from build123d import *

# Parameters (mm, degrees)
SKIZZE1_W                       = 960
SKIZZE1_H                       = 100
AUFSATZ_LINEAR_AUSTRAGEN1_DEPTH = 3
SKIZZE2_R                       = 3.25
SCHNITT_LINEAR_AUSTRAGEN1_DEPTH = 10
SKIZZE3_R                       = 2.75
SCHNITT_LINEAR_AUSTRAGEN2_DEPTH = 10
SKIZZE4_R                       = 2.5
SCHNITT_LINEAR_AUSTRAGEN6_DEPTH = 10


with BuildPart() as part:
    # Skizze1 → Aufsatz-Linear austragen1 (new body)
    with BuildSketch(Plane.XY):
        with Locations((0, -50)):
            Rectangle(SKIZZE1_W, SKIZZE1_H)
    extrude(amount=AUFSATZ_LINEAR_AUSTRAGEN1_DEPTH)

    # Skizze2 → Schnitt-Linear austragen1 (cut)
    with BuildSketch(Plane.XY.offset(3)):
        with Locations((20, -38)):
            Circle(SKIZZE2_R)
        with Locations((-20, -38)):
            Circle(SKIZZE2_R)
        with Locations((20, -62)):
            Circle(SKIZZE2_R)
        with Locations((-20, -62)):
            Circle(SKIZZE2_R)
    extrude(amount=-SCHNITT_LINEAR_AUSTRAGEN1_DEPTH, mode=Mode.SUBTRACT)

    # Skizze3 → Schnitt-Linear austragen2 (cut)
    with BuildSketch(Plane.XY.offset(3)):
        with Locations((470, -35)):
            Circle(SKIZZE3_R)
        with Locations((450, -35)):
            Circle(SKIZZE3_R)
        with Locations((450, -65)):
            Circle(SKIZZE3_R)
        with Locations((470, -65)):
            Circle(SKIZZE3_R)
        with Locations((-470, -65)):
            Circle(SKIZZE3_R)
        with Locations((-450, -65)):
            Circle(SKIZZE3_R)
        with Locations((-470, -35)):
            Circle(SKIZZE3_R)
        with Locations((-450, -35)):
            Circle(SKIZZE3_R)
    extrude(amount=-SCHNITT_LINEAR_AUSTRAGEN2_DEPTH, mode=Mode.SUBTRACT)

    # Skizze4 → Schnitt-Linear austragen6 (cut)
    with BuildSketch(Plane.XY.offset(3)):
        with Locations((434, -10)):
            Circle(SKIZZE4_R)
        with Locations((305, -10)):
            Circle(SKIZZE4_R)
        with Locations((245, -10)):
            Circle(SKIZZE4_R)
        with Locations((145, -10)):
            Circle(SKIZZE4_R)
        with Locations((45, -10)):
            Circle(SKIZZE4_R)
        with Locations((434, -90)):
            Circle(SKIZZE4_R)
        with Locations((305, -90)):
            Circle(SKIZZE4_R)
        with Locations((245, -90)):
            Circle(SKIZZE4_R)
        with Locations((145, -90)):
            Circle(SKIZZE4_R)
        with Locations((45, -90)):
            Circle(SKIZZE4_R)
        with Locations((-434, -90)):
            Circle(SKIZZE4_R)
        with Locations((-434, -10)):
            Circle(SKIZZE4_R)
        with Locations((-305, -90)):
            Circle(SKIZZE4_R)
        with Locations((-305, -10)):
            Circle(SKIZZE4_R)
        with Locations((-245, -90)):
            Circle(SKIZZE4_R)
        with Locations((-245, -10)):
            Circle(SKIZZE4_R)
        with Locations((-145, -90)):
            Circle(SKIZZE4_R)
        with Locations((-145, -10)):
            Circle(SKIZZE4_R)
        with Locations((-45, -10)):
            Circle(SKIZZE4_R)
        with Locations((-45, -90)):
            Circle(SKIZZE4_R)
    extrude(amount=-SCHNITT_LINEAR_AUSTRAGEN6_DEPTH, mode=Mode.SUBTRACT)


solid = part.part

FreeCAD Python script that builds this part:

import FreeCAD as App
import Part
import Sketcher

V = App.Vector
Q = App.Units.Quantity


def add_polygon(sketch, points):
    """Adds a closed chain of lines whose ends are joined by coincident constraints."""
    first, n = sketch.GeometryCount, len(points)
    for a, b in zip(points, points[1:] + points[:1]):
        sketch.addGeometry(Part.LineSegment(App.Vector(*a, 0), App.Vector(*b, 0)), False)
    for i in range(n):
        sketch.addConstraint(Sketcher.Constraint("Coincident", first + i, 2, first + (i + 1) % n, 1))

doc = App.newDocument("Part")
body = doc.addObject("PartDesign::Body", "Body")

sketch1 = doc.addObject("Sketcher::SketchObject", "Sketch")
body.addObject(sketch1)
sketch1.AttachmentSupport = (doc.XY_Plane, [""])
sketch1.MapMode = "FlatFace"
add_polygon(sketch1, [(-480, 0), (-480, -100), (480, -100), (480, 0)])
sketch1.addConstraint([
    Sketcher.Constraint("Vertical", 0),
    Sketcher.Constraint("Horizontal", 1),
    Sketcher.Constraint("Vertical", 2),
    Sketcher.Constraint("Horizontal", 3),
    Sketcher.Constraint("Symmetric", 2, 2, 3, 2, -1, 1),
    Sketcher.Constraint("DistanceX", 1, 1, 1, 2, Q("960 mm")),
    Sketcher.Constraint("DistanceY", 0, 2, 0, 1, Q("100 mm")),
])
pad1 = doc.addObject("PartDesign::Pad", "Pad")
body.addObject(pad1)
pad1.Profile = sketch1
pad1.Length = 3

sketch2 = doc.addObject("Sketcher::SketchObject", "Sketch001")
body.addObject(sketch2)
sketch2.AttachmentSupport = (doc.XY_Plane, [""])
sketch2.MapMode = "FlatFace"
sketch2.AttachmentOffset = App.Placement(V(0, 0, 3), App.Rotation())
sketch2.addGeometry([
    Part.Circle(V(20, -38, 0), V(0, 0, 1), 3.2),
    Part.Circle(V(-20, -38, 0), V(0, 0, 1), 3.2),
    Part.Circle(V(20, -62, 0), V(0, 0, 1), 3.2),
    Part.Circle(V(-20, -62, 0), V(0, 0, 1), 3.2),
], False)
sketch2.addConstraint([
    Sketcher.Constraint("Equal", 0, 1),
    Sketcher.Constraint("Equal", 1, 2),
    Sketcher.Constraint("Equal", 2, 3),
    Sketcher.Constraint("Symmetric", 0, 3, 1, 3, -2),
    Sketcher.Constraint("Symmetric", 2, 3, 3, 3, -2),
    Sketcher.Constraint("Vertical", 0, 3, 2, 3),
    Sketcher.Constraint("Diameter", 0, Q("6.5 mm")),
    Sketcher.Constraint("DistanceX", -1, 1, 0, 3, Q("20 mm")),
    Sketcher.Constraint("DistanceY", 0, 3, -1, 1, Q("38 mm")),
    Sketcher.Constraint("DistanceY", 2, 3, -1, 1, Q("62 mm")),
])
pocket1 = doc.addObject("PartDesign::Pocket", "Pocket")
body.addObject(pocket1)
pocket1.Profile = sketch2
pocket1.Length = 10

sketch3 = doc.addObject("Sketcher::SketchObject", "Sketch002")
body.addObject(sketch3)
sketch3.AttachmentSupport = (doc.XY_Plane, [""])
sketch3.MapMode = "FlatFace"
sketch3.AttachmentOffset = App.Placement(V(0, 0, 3), App.Rotation())
sketch3.addGeometry([
    Part.Circle(V(470, -35, 0), V(0, 0, 1), 2.8),
    Part.Circle(V(450, -35, 0), V(0, 0, 1), 2.8),
    Part.Circle(V(450, -65, 0), V(0, 0, 1), 2.8),
    Part.Circle(V(470, -65, 0), V(0, 0, 1), 2.8),
    Part.Circle(V(-470, -65, 0), V(0, 0, 1), 2.8),
    Part.Circle(V(-450, -65, 0), V(0, 0, 1), 2.8),
    Part.Circle(V(-470, -35, 0), V(0, 0, 1), 2.8),
    Part.Circle(V(-450, -35, 0), V(0, 0, 1), 2.8),
], False)
sketch3.addConstraint([
    Sketcher.Constraint("Equal", 0, 1),
    Sketcher.Constraint("Equal", 1, 2),
    Sketcher.Constraint("Equal", 2, 3),
    Sketcher.Constraint("Equal", 3, 4),
    Sketcher.Constraint("Equal", 4, 5),
    Sketcher.Constraint("Equal", 5, 6),
    Sketcher.Constraint("Equal", 6, 7),
    Sketcher.Constraint("Symmetric", 3, 3, 4, 3, -2),
    Sketcher.Constraint("Symmetric", 2, 3, 5, 3, -2),
    Sketcher.Constraint("Symmetric", 0, 3, 6, 3, -2),
    Sketcher.Constraint("Symmetric", 1, 3, 7, 3, -2),
    Sketcher.Constraint("Horizontal", 0, 3, 1, 3),
    Sketcher.Constraint("Horizontal", 2, 3, 3, 3),
    Sketcher.Constraint("Vertical", 1, 3, 2, 3),
    Sketcher.Constraint("Vertical", 0, 3, 3, 3),
    Sketcher.Constraint("Diameter", 0, Q("5.5 mm")),
    Sketcher.Constraint("DistanceX", -1, 1, 0, 3, Q("470 mm")),
    Sketcher.Constraint("DistanceY", 0, 3, -1, 1, Q("35 mm")),
    Sketcher.Constraint("DistanceX", -1, 1, 1, 3, Q("450 mm")),
    Sketcher.Constraint("DistanceY", 2, 3, -1, 1, Q("65 mm")),
])
pocket2 = doc.addObject("PartDesign::Pocket", "Pocket001")
body.addObject(pocket2)
pocket2.Profile = sketch3
pocket2.Length = 10

sketch4 = doc.addObject("Sketcher::SketchObject", "Sketch003")
body.addObject(sketch4)
sketch4.AttachmentSupport = (doc.XY_Plane, [""])
sketch4.MapMode = "FlatFace"
sketch4.AttachmentOffset = App.Placement(V(0, 0, 3), App.Rotation())
sketch4.addGeometry([
    Part.Circle(V(434, -10, 0), V(0, 0, 1), 2.5),
    Part.Circle(V(305, -10, 0), V(0, 0, 1), 2.5),
    Part.Circle(V(245, -10, 0), V(0, 0, 1), 2.5),
    Part.Circle(V(145, -10, 0), V(0, 0, 1), 2.5),
    Part.Circle(V(45, -10, 0), V(0, 0, 1), 2.5),
    Part.Circle(V(434, -90, 0), V(0, 0, 1), 2.5),
    Part.Circle(V(305, -90, 0), V(0, 0, 1), 2.5),
    Part.Circle(V(245, -90, 0), V(0, 0, 1), 2.5),
    Part.Circle(V(145, -90, 0), V(0, 0, 1), 2.5),
    Part.Circle(V(45, -90, 0), V(0, 0, 1), 2.5),
    Part.Circle(V(-434, -90, 0), V(0, 0, 1), 2.5),
    Part.Circle(V(-434, -10, 0), V(0, 0, 1), 2.5),
    Part.Circle(V(-305, -90, 0), V(0, 0, 1), 2.5),
    Part.Circle(V(-305, -10, 0), V(0, 0, 1), 2.5),
    Part.Circle(V(-245, -90, 0), V(0, 0, 1), 2.5),
    Part.Circle(V(-245, -10, 0), V(0, 0, 1), 2.5),
    Part.Circle(V(-145, -90, 0), V(0, 0, 1), 2.5),
    Part.Circle(V(-145, -10, 0), V(0, 0, 1), 2.5),
    Part.Circle(V(-45, -10, 0), V(0, 0, 1), 2.5),
    Part.Circle(V(-45, -90, 0), V(0, 0, 1), 2.5),
], False)
sketch4.addConstraint([
    Sketcher.Constraint("Equal", 0, 1),
    Sketcher.Constraint("Equal", 1, 2),
    Sketcher.Constraint("Equal", 2, 3),
    Sketcher.Constraint("Equal", 3, 4),
    Sketcher.Constraint("Equal", 4, 5),
    Sketcher.Constraint("Equal", 5, 6),
    Sketcher.Constraint("Equal", 6, 7),
    Sketcher.Constraint("Equal", 7, 8),
    Sketcher.Constraint("Equal", 8, 9),
    Sketcher.Constraint("Equal", 9, 10),
    Sketcher.Constraint("Equal", 10, 11),
    Sketcher.Constraint("Equal", 11, 12),
    Sketcher.Constraint("Equal", 12, 13),
    Sketcher.Constraint("Equal", 13, 14),
    Sketcher.Constraint("Equal", 14, 15),
    Sketcher.Constraint("Equal", 15, 16),
    Sketcher.Constraint("Equal", 16, 17),
    Sketcher.Constraint("Equal", 17, 18),
    Sketcher.Constraint("Equal", 18, 19),
    Sketcher.Constraint("Symmetric", 5, 3, 10, 3, -2),
    Sketcher.Constraint("Symmetric", 0, 3, 11, 3, -2),
    Sketcher.Constraint("Symmetric", 6, 3, 12, 3, -2),
    Sketcher.Constraint("Symmetric", 1, 3, 13, 3, -2),
    Sketcher.Constraint("Symmetric", 7, 3, 14, 3, -2),
    Sketcher.Constraint("Symmetric", 2, 3, 15, 3, -2),
    Sketcher.Constraint("Symmetric", 8, 3, 16, 3, -2),
    Sketcher.Constraint("Symmetric", 3, 3, 17, 3, -2),
    Sketcher.Constraint("Symmetric", 4, 3, 18, 3, -2),
    Sketcher.Constraint("Symmetric", 9, 3, 19, 3, -2),
    Sketcher.Constraint("Horizontal", 0, 3, 1, 3),
    Sketcher.Constraint("Horizontal", 1, 3, 2, 3),
    Sketcher.Constraint("Horizontal", 2, 3, 3, 3),
    Sketcher.Constraint("Horizontal", 3, 3, 4, 3),
    Sketcher.Constraint("Horizontal", 5, 3, 6, 3),
    Sketcher.Constraint("Horizontal", 6, 3, 7, 3),
    Sketcher.Constraint("Horizontal", 7, 3, 8, 3),
    Sketcher.Constraint("Horizontal", 8, 3, 9, 3),
    Sketcher.Constraint("Vertical", 0, 3, 5, 3),
    Sketcher.Constraint("Vertical", 1, 3, 6, 3),
    Sketcher.Constraint("Vertical", 2, 3, 7, 3),
    Sketcher.Constraint("Vertical", 3, 3, 8, 3),
    Sketcher.Constraint("Vertical", 4, 3, 9, 3),
    Sketcher.Constraint("Diameter", 0, Q("5 mm")),
    Sketcher.Constraint("DistanceX", -1, 1, 0, 3, Q("434 mm")),
    Sketcher.Constraint("DistanceY", 0, 3, -1, 1, Q("10 mm")),
    Sketcher.Constraint("DistanceX", -1, 1, 1, 3, Q("305 mm")),
    Sketcher.Constraint("DistanceX", -1, 1, 2, 3, Q("245 mm")),
    Sketcher.Constraint("DistanceX", -1, 1, 3, 3, Q("145 mm")),
    Sketcher.Constraint("DistanceX", -1, 1, 4, 3, Q("45 mm")),
    Sketcher.Constraint("DistanceY", 5, 3, -1, 1, Q("90 mm")),
])
pocket3 = doc.addObject("PartDesign::Pocket", "Pocket002")
body.addObject(pocket3)
pocket3.Profile = sketch4
pocket3.Length = 10

doc.recompute()
